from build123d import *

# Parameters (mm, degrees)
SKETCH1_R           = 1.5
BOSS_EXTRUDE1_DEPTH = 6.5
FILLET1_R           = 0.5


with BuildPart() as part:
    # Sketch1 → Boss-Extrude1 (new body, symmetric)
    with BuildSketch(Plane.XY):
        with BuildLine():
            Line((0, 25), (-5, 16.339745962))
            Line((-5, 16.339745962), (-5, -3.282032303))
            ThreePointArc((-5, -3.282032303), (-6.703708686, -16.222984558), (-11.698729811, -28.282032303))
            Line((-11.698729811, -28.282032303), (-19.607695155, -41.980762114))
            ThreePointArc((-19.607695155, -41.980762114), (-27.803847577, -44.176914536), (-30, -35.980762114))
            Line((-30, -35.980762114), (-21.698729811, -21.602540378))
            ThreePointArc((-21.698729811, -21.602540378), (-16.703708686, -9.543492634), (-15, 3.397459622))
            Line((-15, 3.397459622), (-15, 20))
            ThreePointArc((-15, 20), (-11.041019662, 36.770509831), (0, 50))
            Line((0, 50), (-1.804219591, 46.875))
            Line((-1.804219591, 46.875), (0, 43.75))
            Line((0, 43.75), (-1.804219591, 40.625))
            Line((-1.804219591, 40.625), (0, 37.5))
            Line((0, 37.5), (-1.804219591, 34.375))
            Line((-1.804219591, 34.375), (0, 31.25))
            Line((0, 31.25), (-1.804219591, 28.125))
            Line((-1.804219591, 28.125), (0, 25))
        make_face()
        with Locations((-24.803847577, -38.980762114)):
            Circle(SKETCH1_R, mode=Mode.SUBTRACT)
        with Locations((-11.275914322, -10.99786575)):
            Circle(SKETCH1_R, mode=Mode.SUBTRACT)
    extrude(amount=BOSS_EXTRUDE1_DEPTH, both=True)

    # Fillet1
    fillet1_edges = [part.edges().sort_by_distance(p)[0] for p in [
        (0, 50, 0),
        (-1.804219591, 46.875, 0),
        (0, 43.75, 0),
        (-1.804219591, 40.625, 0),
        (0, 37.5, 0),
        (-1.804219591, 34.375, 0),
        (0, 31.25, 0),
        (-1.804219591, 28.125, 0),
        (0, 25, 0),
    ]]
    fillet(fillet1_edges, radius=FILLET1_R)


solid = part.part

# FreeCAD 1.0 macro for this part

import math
import FreeCAD as App
import Part
import Sketcher
from FreeCAD import Vector
Q = App.Units.Quantity


def edges_at(feature, points):
    """Names of the edges that pass closest to the given points."""
    edges = feature.Shape.Edges
    near = lambda p: min(range(len(edges)), key=lambda i: edges[i].distToShape(Part.Vertex(*p))[0])
    return sorted({f"Edge{near(p) + 1}" for p in points})

doc = App.newDocument("Part")
body = doc.addObject("PartDesign::Body", "Body")

# Sketch on XY plane
sketch1 = body.newObject("Sketcher::SketchObject", "Sketch")
sketch1.AttachmentSupport = (doc.getObject("XY_Plane"), [""])
sketch1.MapMode = "FlatFace"
sketch1.addGeometry([
    Part.LineSegment(Vector(-5, 16.339746, 0), Vector(0, 25, 0)),  # 0
    Part.LineSegment(Vector(0, 25, 0), Vector(-1.80422, 28.125, 0)),  # 1
    Part.LineSegment(Vector(-1.80422, 28.125, 0), Vector(0, 31.25, 0)),  # 2
    Part.LineSegment(Vector(0, 31.25, 0), Vector(-1.80422, 34.375, 0)),  # 3
    Part.LineSegment(Vector(-1.80422, 34.375, 0), Vector(0, 37.5, 0)),  # 4
    Part.LineSegment(Vector(0, 37.5, 0), Vector(-1.80422, 40.625, 0)),  # 5
    Part.LineSegment(Vector(-1.80422, 40.625, 0), Vector(0, 43.75, 0)),  # 6
    Part.LineSegment(Vector(0, 43.75, 0), Vector(-1.80422, 46.875, 0)),  # 7
    Part.LineSegment(Vector(-1.80422, 46.875, 0), Vector(0, 50, 0)),  # 8
    Part.ArcOfCircle(Part.Circle(Vector(22.5, 20, 0), Vector(0, 0, 1), 37.5), math.radians(126.869898), math.radians(180)),  # 9
    Part.LineSegment(Vector(-15, 20, 0), Vector(-15, 3.39746, 0)),  # 10
    Part.ArcOfCircle(Part.Circle(Vector(-65, 3.39746, 0), Vector(0, 0, 1), 50), math.radians(-30), math.radians(0)),  # 11
    Part.LineSegment(Vector(-21.69873, -21.60254, 0), Vector(-30, -35.980762, 0)),  # 12
    Part.ArcOfCircle(Part.Circle(Vector(-24.803848, -38.980762, 0), Vector(0, 0, 1), 6), math.radians(150), math.radians(330)),  # 13
    Part.LineSegment(Vector(-19.607695, -41.980762, 0), Vector(-11.69873, -28.282032, 0)),  # 14
    Part.ArcOfCircle(Part.Circle(Vector(-55, -3.282032, 0), Vector(0, 0, 1), 50), math.radians(-30), math.radians(0)),  # 15
    Part.LineSegment(Vector(-5, -3.282032, 0), Vector(-5, 16.339746, 0)),  # 16
    Part.Circle(Vector(-24.803848, -38.980762, 0), Vector(0, 0, 1), 1.5),  # 17
    Part.Circle(Vector(-11.275914, -10.997866, 0), Vector(0, 0, 1), 1.5),  # 18
], False)
sketch1.addConstraint([
    Sketcher.Constraint("Coincident", 0, 2, 1, 1),
    Sketcher.Constraint("Coincident", 1, 2, 2, 1),
    Sketcher.Constraint("Coincident", 2, 2, 3, 1),
    Sketcher.Constraint("Coincident", 3, 2, 4, 1),
    Sketcher.Constraint("Coincident", 4, 2, 5, 1),
    Sketcher.Constraint("Coincident", 5, 2, 6, 1),
    Sketcher.Constraint("Coincident", 6, 2, 7, 1),
    Sketcher.Constraint("Coincident", 7, 2, 8, 1),
    Sketcher.Constraint("Coincident", 8, 2, 9, 1),
    Sketcher.Constraint("Tangent", 9, 2, 10, 1),
    Sketcher.Constraint("Tangent", 10, 2, 11, 2),
    Sketcher.Constraint("Tangent", 11, 1, 12, 1),
    Sketcher.Constraint("Tangent", 12, 2, 13, 1),
    Sketcher.Constraint("Tangent", 13, 2, 14, 1),
    Sketcher.Constraint("Tangent", 14, 2, 15, 1),
    Sketcher.Constraint("Tangent", 15, 2, 16, 1),
    Sketcher.Constraint("Coincident", 16, 2, 0, 1),
    Sketcher.Constraint("Vertical", 10),
    Sketcher.Constraint("Vertical", 16),
    Sketcher.Constraint("Coincident", 17, 3, 13, 3),
    Sketcher.Constraint("Equal", 11, 15),
    Sketcher.Constraint("Equal", 17, 18),
    Sketcher.Constraint("PointOnObject", 0, 2, -2),
    Sketcher.Constraint("PointOnObject", 2, 2, -2),
    Sketcher.Constraint("PointOnObject", 4, 2, -2),
    Sketcher.Constraint("PointOnObject", 6, 2, -2),
    Sketcher.Constraint("PointOnObject", 8, 2, -2),
    Sketcher.Constraint("Parallel", 0, 2),
    Sketcher.Constraint("Parallel", 1, 3),
    Sketcher.Constraint("Parallel", 2, 4),
    Sketcher.Constraint("Parallel", 3, 5),
    Sketcher.Constraint("Parallel", 4, 6),
    Sketcher.Constraint("Parallel", 5, 7),
    Sketcher.Constraint("Parallel", 6, 8),
    Sketcher.Constraint("Parallel", 8, 12),
    Sketcher.Constraint("Parallel", 12, 14),
    Sketcher.Constraint("Vertical", 1, 2, 3, 2),
    Sketcher.Constraint("Vertical", 3, 2, 5, 2),
    Sketcher.Constraint("Vertical", 5, 2, 7, 2),
    Sketcher.Constraint("Equal", 1, 2),
    Sketcher.Constraint("Diameter", 17, Q("3 mm")),
    Sketcher.Constraint("Radius", 11, Q("50 mm")),
    Sketcher.Constraint("Radius", 13, Q("6 mm")),
    Sketcher.Constraint("Radius", 9, Q("37.5 mm")),
    Sketcher.Constraint("Angle", 0, Q("60 deg")),
    Sketcher.Constraint("Distance", 0, Q("10 mm")),
    Sketcher.Constraint("DistanceY", -1, 1, 9, 3, Q("20 mm")),
    Sketcher.Constraint("DistanceX", 11, 3, -1, 1, Q("65 mm")),
    Sketcher.Constraint("DistanceY", -1, 1, 0, 2, Q("25 mm")),
    Sketcher.Constraint("DistanceX", 12, 2, -1, 1, Q("30 mm")),
    Sketcher.Constraint("DistanceY", 10, 2, 10, 1, Q("16.60254 mm")),
    Sketcher.Constraint("DistanceX", 13, 2, 18, 3, Q("8.331781 mm")),
    Sketcher.Constraint("DistanceY", 18, 3, -1, 1, Q("10.997866 mm")),
])
pad1 = body.newObject("PartDesign::Pad", "Pad")
pad1.Profile = sketch1
pad1.Length = 13
pad1.Midplane = True
doc.recompute()

fillet = body.newObject("PartDesign::Fillet", "Fillet")
fillet.Base = (pad1, edges_at(pad1, [
    (0, 50, 0),
    (-1.804, 46.875, 0),
    (0, 43.75, 0),
    (-1.804, 40.625, 0),
    (0, 37.5, 0),
    (-1.804, 34.375, 0),
    (0, 31.25, 0),
    (-1.804, 28.125, 0),
    (0, 25, 0),
]))
fillet.Radius = 0.5

doc.recompute()
